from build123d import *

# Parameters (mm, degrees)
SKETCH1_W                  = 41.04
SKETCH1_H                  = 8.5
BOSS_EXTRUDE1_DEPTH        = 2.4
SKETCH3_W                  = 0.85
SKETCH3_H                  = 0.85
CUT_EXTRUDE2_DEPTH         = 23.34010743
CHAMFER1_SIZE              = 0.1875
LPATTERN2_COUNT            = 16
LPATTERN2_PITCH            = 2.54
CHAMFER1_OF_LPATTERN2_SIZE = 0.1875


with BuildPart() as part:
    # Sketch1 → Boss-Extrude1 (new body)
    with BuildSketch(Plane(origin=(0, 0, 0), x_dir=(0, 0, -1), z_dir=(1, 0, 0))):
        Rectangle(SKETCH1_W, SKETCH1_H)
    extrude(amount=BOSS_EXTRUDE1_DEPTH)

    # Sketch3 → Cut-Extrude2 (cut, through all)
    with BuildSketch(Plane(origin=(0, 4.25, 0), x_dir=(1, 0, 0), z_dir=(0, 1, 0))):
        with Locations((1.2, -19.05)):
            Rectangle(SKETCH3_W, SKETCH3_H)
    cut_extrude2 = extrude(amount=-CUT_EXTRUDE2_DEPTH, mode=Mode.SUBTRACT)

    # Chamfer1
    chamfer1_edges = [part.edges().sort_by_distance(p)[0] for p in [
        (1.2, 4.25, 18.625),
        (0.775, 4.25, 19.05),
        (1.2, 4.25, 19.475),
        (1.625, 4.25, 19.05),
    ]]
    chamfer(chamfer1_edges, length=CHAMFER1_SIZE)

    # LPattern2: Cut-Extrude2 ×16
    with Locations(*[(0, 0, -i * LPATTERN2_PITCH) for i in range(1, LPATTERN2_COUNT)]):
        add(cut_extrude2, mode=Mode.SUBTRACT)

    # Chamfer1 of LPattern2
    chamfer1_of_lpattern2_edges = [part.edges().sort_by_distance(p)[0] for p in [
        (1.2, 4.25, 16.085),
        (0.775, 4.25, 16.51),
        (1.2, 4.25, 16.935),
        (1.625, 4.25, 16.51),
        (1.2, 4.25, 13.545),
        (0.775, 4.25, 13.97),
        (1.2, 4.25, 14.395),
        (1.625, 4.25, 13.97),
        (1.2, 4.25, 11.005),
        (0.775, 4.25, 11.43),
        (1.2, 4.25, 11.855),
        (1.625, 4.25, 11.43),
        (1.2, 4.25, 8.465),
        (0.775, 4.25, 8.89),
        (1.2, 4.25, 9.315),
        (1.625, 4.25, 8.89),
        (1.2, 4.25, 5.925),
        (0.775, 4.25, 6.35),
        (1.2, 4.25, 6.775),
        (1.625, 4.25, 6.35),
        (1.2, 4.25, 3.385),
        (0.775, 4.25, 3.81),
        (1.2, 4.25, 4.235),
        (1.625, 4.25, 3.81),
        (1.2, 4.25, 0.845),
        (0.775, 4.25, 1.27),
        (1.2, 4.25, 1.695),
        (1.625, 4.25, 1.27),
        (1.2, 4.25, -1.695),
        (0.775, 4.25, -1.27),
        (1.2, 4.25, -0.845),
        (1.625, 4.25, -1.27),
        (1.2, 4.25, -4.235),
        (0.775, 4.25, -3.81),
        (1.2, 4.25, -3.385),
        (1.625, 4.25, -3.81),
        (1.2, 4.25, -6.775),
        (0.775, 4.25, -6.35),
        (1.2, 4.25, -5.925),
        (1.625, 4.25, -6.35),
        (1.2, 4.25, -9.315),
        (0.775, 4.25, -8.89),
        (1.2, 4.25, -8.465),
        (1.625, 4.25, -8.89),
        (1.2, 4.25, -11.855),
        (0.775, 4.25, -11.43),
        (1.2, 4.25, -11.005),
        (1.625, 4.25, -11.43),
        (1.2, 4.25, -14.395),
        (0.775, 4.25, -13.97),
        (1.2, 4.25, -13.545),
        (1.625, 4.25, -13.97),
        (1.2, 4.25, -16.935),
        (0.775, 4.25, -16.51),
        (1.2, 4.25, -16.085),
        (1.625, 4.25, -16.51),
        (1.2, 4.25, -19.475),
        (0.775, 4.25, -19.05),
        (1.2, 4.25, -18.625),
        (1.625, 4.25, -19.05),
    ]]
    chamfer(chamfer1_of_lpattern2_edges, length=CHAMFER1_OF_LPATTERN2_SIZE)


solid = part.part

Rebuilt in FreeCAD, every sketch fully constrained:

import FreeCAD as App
import Part
import Sketcher
from FreeCAD import Vector
Q = App.Units.Quantity


def edges_at(feature, points):
    """Names of the edges that pass closest to the given points."""
    edges = feature.Shape.Edges
    near = lambda p: min(range(len(edges)), key=lambda i: edges[i].distToShape(Part.Vertex(*p))[0])
    return sorted({f"Edge{near(p) + 1}" for p in points})


def add_polygon(sketch, points):
    """Adds a closed chain of lines whose ends are joined by coincident constraints."""
    first, n = sketch.GeometryCount, len(points)
    for a, b in zip(points, points[1:] + points[:1]):
        sketch.addGeometry(Part.LineSegment(App.Vector(*a, 0), App.Vector(*b, 0)), False)
    for i in range(n):
        sketch.addConstraint(Sketcher.Constraint("Coincident", first + i, 2, first + (i + 1) % n, 1))

doc = App.newDocument("Part")
body = doc.addObject("PartDesign::Body", "Body")

# Sketch on YZ plane
sketch1 = body.newObject("Sketcher::SketchObject", "Sketch")
sketch1.AttachmentSupport = (doc.getObject("YZ_Plane"), [""])
sketch1.MapMode = "FlatFace"
add_polygon(sketch1, [(4, 21), (-4, 21), (-4, -21), (4, -21)])  # lines 0-3
sketch1.addConstraint(Sketcher.Constraint("Horizontal", 0))
sketch1.addConstraint(Sketcher.Constraint("Vertical", 1))
sketch1.addConstraint(Sketcher.Constraint("Horizontal", 2))
sketch1.addConstraint(Sketcher.Constraint("Vertical", 3))
sketch1.addConstraint(Sketcher.Constraint("Symmetric", 0, 2, 2, 2, -1, 1))
sketch1.addConstraint(Sketcher.Constraint("DistanceX", 0, 2, 0, 1, Q("8.5 mm")))
sketch1.addConstraint(Sketcher.Constraint("DistanceY", 1, 2, 1, 1, Q("41.04 mm")))
pad1 = body.newObject("PartDesign::Pad", "Pad")
pad1.Profile = sketch1
pad1.Length = 2.4

# Sketch on XZ plane
sketch2 = body.newObject("Sketcher::SketchObject", "Sketch001")
sketch2.AttachmentSupport = (doc.getObject("XZ_Plane"), [""])
sketch2.MapMode = "FlatFace"
sketch2.AttachmentOffset = App.Placement(Vector(0, 0, -4.25), App.Rotation())
add_polygon(sketch2, [(0.8, 18.6), (0.8, 19.5), (1.6, 19.5), (1.6, 18.6)])  # lines 0-3
sketch2.addConstraint(Sketcher.Constraint("Vertical", 0))
sketch2.addConstraint(Sketcher.Constraint("Horizontal", 1))
sketch2.addConstraint(Sketcher.Constraint("Vertical", 2))
sketch2.addConstraint(Sketcher.Constraint("Horizontal", 3))
sketch2.addConstraint(Sketcher.Constraint("Equal", 3, 0))
sketch2.addConstraint(Sketcher.Constraint("DistanceX", 1, 1, 1, 2, Q("0.85 mm")))
sketch2.addConstraint(Sketcher.Constraint("DistanceX", -1, 1, 0, 2, Q("0.775 mm")))
sketch2.addConstraint(Sketcher.Constraint("DistanceY", -1, 1, 0, 2, Q("19.475 mm")))
pocket1 = body.newObject("PartDesign::Pocket", "Pocket")
pocket1.Profile = sketch2
pocket1.Type = "ThroughAll"
pocket1.Reversed = True
doc.recompute()

chamfer = body.newObject("PartDesign::Chamfer", "Chamfer")
chamfer.Base = (pocket1, edges_at(pocket1, [
    (1.2, 4.25, 18.625),
    (0.775, 4.25, 19.05),
    (1.2, 4.25, 19.475),
    (1.625, 4.25, 19.05),
]))
chamfer.Size = 0.1875
doc.recompute()

linearpattern = body.newObject("PartDesign::LinearPattern", "LinearPattern")
linearpattern.Originals = [pocket1]
linearpattern.Direction = (doc.getObject("Z_Axis"), [""])
linearpattern.Mode = "offset"
linearpattern.Offset = 2.54
linearpattern.Occurrences = 16
linearpattern.Reversed = True
body.Tip = linearpattern
doc.recompute()

chamfer2 = body.newObject("PartDesign::Chamfer", "Chamfer001")
chamfer2.Base = (linearpattern, edges_at(linearpattern, [
    (1.2, 4.25, 16.085),
    (0.775, 4.25, 16.51),
    (1.2, 4.25, 16.935),
    (1.625, 4.25, 16.51),
    (1.2, 4.25, 13.545),
    (0.775, 4.25, 13.97),
    (1.2, 4.25, 14.395),
    (1.625, 4.25, 13.97),
    (1.2, 4.25, 11.005),
    (0.775, 4.25, 11.43),
    (1.2, 4.25, 11.855),
    (1.625, 4.25, 11.43),
    (1.2, 4.25, 8.465),
    (0.775, 4.25, 8.89),
    (1.2, 4.25, 9.315),
    (1.625, 4.25, 8.89),
    (1.2, 4.25, 5.925),
    (0.775, 4.25, 6.35),
    (1.2, 4.25, 6.775),
    (1.625, 4.25, 6.35),
    (1.2, 4.25, 3.385),
    (0.775, 4.25, 3.81),
    (1.2, 4.25, 4.235),
    (1.625, 4.25, 3.81),
    (1.2, 4.25, 0.845),
    (0.775, 4.25, 1.27),
    (1.2, 4.25, 1.695),
    (1.625, 4.25, 1.27),
    (1.2, 4.25, -1.695),
    (0.775, 4.25, -1.27),
    (1.2, 4.25, -0.845),
    (1.625, 4.25, -1.27),
    (1.2, 4.25, -4.235),
    (0.775, 4.25, -3.81),
    (1.2, 4.25, -3.385),
    (1.625, 4.25, -3.81),
    (1.2, 4.25, -6.775),
    (0.775, 4.25, -6.35),
    (1.2, 4.25, -5.925),
    (1.625, 4.25, -6.35),
    (1.2, 4.25, -9.315),
    (0.775, 4.25, -8.89),
    (1.2, 4.25, -8.465),
    (1.625, 4.25, -8.89),
    (1.2, 4.25, -11.855),
    (0.775, 4.25, -11.43),
    (1.2, 4.25, -11.005),
    (1.625, 4.25, -11.43),
    (1.2, 4.25, -14.395),
    (0.775, 4.25, -13.97),
    (1.2, 4.25, -13.545),
    (1.625, 4.25, -13.97),
    (1.2, 4.25, -16.935),
    (0.775, 4.25, -16.51),
    (1.2, 4.25, -16.085),
    (1.625, 4.25, -16.51),
    (1.2, 4.25, -19.475),
    (0.775, 4.25, -19.05),
    (1.2, 4.25, -18.625),
    (1.625, 4.25, -19.05),
]))
chamfer2.Size = 0.1875

doc.recompute()
